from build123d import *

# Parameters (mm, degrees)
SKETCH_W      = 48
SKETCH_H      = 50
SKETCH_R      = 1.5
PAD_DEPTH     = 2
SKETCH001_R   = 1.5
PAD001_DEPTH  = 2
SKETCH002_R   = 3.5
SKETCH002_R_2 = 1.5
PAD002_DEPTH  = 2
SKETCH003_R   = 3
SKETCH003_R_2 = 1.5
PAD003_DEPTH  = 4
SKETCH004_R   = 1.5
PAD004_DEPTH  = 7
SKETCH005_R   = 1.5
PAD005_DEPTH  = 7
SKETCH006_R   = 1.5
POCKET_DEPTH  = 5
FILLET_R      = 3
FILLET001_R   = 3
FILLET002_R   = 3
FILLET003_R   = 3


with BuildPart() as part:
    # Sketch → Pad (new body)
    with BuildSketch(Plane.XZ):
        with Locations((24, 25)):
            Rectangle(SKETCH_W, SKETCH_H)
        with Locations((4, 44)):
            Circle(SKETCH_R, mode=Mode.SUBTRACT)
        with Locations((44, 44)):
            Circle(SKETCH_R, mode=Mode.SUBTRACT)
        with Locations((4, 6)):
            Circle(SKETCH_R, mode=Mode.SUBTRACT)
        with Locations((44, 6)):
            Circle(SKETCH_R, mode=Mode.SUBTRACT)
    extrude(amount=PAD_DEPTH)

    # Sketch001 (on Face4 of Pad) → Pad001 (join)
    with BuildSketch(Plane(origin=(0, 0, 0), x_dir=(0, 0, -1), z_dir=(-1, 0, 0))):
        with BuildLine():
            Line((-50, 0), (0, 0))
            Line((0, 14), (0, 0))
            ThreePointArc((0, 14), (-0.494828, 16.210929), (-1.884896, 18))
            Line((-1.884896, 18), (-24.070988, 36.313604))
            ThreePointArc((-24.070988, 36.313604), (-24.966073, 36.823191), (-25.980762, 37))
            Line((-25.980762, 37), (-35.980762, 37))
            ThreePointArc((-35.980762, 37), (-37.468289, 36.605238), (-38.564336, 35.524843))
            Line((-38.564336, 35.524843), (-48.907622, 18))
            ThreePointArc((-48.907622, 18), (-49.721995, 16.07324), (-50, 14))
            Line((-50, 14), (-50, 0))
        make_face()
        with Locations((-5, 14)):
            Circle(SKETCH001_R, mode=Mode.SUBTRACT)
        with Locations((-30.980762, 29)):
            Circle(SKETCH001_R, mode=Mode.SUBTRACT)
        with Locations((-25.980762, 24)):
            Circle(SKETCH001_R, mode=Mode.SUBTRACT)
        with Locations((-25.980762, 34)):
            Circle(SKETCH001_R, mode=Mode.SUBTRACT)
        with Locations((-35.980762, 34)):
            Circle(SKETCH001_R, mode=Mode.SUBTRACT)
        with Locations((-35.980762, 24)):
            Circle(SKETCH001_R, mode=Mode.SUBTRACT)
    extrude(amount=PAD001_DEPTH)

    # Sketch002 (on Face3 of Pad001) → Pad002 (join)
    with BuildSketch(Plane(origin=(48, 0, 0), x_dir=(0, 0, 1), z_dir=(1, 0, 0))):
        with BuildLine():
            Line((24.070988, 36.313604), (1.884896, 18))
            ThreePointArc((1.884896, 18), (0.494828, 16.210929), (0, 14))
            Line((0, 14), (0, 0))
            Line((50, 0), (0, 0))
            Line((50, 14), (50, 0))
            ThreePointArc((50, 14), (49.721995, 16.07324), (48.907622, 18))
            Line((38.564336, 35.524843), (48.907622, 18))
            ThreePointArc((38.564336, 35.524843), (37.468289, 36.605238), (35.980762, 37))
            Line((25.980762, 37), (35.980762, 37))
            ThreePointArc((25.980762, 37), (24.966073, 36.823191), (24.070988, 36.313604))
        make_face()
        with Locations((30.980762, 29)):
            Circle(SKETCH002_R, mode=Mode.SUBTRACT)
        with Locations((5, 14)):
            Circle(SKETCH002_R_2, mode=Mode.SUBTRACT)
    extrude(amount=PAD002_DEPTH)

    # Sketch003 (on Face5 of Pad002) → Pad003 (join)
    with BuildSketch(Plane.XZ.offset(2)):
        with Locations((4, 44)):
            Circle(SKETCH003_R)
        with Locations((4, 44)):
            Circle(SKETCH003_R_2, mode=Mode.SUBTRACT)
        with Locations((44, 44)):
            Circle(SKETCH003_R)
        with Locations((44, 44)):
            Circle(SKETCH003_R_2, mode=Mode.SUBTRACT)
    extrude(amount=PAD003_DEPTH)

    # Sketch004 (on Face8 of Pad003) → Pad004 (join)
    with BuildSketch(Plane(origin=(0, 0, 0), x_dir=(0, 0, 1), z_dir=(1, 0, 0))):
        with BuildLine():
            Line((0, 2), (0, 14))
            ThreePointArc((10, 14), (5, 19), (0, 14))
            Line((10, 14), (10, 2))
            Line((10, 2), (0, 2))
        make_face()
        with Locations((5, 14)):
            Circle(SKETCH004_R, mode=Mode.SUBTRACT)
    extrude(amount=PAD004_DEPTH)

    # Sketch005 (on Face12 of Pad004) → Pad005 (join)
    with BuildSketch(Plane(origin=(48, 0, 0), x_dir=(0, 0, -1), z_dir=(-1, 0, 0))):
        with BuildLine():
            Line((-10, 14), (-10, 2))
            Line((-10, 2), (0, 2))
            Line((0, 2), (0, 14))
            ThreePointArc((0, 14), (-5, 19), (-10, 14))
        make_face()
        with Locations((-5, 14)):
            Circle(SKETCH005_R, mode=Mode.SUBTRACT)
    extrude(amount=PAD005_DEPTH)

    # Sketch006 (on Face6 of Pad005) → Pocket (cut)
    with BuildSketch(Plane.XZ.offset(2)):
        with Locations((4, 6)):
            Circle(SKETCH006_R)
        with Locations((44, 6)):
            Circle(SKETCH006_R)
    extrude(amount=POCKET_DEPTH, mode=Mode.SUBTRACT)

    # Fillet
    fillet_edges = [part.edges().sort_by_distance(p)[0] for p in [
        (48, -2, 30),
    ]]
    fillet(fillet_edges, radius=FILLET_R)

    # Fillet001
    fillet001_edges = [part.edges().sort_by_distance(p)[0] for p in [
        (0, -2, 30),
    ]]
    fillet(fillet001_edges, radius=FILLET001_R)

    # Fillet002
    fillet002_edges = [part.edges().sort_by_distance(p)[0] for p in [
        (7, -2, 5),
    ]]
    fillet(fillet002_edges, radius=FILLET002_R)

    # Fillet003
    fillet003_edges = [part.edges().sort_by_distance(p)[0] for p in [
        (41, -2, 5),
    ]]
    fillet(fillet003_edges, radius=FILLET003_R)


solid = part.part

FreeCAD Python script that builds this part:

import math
import FreeCAD as App
import Part
import Sketcher

V = App.Vector


def edges_at(feature, points):
    """Names of the edges that pass closest to the given points."""
    edges = feature.Shape.Edges
    near = lambda p: min(range(len(edges)), key=lambda i: edges[i].distToShape(Part.Vertex(*p))[0])
    return sorted({f"Edge{near(p) + 1}" for p in points})

doc = App.newDocument("Part")
params = doc.addObject("Spreadsheet::Sheet", "Params")
for row, (alias, value) in enumerate([
    ("sketch1_diameter", "3 mm"),
    ("sketch1_width", "48 mm"),
    ("sketch1_height", "50 mm"),
    ("pad1_length", "2 mm"),
    ("sketch2_diameter", "3 mm"),
    ("sketch2_radius", "2.999999 mm"),
    ("sketch2_width", "14 mm"),
    ("sketch2_height", "50 mm"),
    ("sketch2_height2", "10 mm"),
    ("pad2_length", "2 mm"),
    ("sketch3_diameter", "3 mm"),
    ("sketch3_diameter2", "7 mm"),
    ("sketch3_radius", "2.999999 mm"),
    ("sketch3_width", "14 mm"),
    ("sketch3_height", "50 mm"),
    ("pad3_length", "2 mm"),
    ("sketch4_diameter", "6 mm"),
    ("sketch4_diameter2", "3 mm"),
    ("pad4_length", "4 mm"),
    ("sketch5_diameter", "3 mm"),
    ("sketch5_radius", "5 mm"),
    ("sketch5_width", "12 mm"),
    ("pad5_length", "7 mm"),
    ("sketch6_diameter", "3 mm"),
    ("sketch6_radius", "5 mm"),
    ("sketch6_width", "12 mm"),
    ("pad6_length", "7 mm"),
    ("sketch7_diameter", "3 mm"),
    ("pocket1_length", "5 mm"),
    ("fillet_radius", "3 mm"),
    ("fillet2_radius", "3 mm"),
    ("fillet3_radius", "3 mm"),
    ("fillet4_radius", "3 mm"),
], start=1):
    params.set(f"A{row}", alias)
    params.set(f"B{row}", "=" + value)
    params.setAlias(f"B{row}", alias)

body = doc.addObject("PartDesign::Body", "Body")

# Sketch on XZ plane
sketch1 = doc.addObject("Sketcher::SketchObject", "Sketch")
body.addObject(sketch1)
sketch1.AttachmentSupport = (doc.XZ_Plane, [""])
sketch1.MapMode = "FlatFace"
sketch1.addGeometry(Part.LineSegment(V(0, 50, 0), V(0, 0, 0)), False)
sketch1.addGeometry(Part.LineSegment(V(0, 0, 0), V(48, 0, 0)), False)
sketch1.addGeometry(Part.LineSegment(V(48, 0, 0), V(48, 50, 0)), False)
sketch1.addGeometry(Part.LineSegment(V(48, 50, 0), V(0, 50, 0)), False)
sketch1.addGeometry(Part.Circle(V(4, 6, 0), V(0, 0, 1), 1.5), False)
sketch1.addGeometry(Part.Circle(V(44, 6, 0), V(0, 0, 1), 1.5), False)
sketch1.addGeometry(Part.Circle(V(4, 44, 0), V(0, 0, 1), 1.5), False)
sketch1.addGeometry(Part.Circle(V(44, 44, 0), V(0, 0, 1), 1.5), False)
sketch1.addConstraint(Sketcher.Constraint("Coincident", 0, 2, 1, 1))
sketch1.addConstraint(Sketcher.Constraint("Coincident", 1, 2, 2, 1))
sketch1.addConstraint(Sketcher.Constraint("Coincident", 2, 2, 3, 1))
sketch1.addConstraint(Sketcher.Constraint("Coincident", 3, 2, 0, 1))
sketch1.addConstraint(Sketcher.Constraint("Vertical", 0))
sketch1.addConstraint(Sketcher.Constraint("Horizontal", 1))
sketch1.addConstraint(Sketcher.Constraint("Vertical", 2))
sketch1.addConstraint(Sketcher.Constraint("Horizontal", 3))
sketch1.addConstraint(Sketcher.Constraint("Coincident", 0, 2, -1, 1))
sketch1.addConstraint(Sketcher.Constraint("Equal", 4, 5))
sketch1.addConstraint(Sketcher.Constraint("Equal", 5, 6))
sketch1.addConstraint(Sketcher.Constraint("Equal", 6, 7))
sketch1.addConstraint(Sketcher.Constraint("Horizontal", 4, 3, 5, 3))
sketch1.addConstraint(Sketcher.Constraint("Horizontal", 6, 3, 7, 3))
sketch1.addConstraint(Sketcher.Constraint("Vertical", 4, 3, 6, 3))
sketch1.addConstraint(Sketcher.Constraint("Vertical", 5, 3, 7, 3))
sketch1.addConstraint(Sketcher.Constraint("Diameter", 4, 3.0))
sketch1.addConstraint(Sketcher.Constraint("DistanceX", 1, 1, 1, 2, 48.0))
sketch1.addConstraint(Sketcher.Constraint("DistanceY", 0, 2, 0, 1, 50.0))
sketch1.addConstraint(Sketcher.Constraint("DistanceX", -1, 1, 4, 3, 4.0))
sketch1.addConstraint(Sketcher.Constraint("DistanceY", -1, 1, 4, 3, 6.0))
sketch1.addConstraint(Sketcher.Constraint("DistanceX", -1, 1, 5, 3, 44.0))
sketch1.addConstraint(Sketcher.Constraint("DistanceY", -1, 1, 6, 3, 44.0))
sketch1.setExpression("Constraints[16]", "Params.sketch1_diameter")
sketch1.setExpression("Constraints[17]", "Params.sketch1_width")
sketch1.setExpression("Constraints[18]", "Params.sketch1_height")
pad1 = doc.addObject("PartDesign::Pad", "Pad")
body.addObject(pad1)
pad1.Profile = sketch1
pad1.setExpression("Length", "Params.pad1_length")

# Sketch on YZ plane
sketch2 = doc.addObject("Sketcher::SketchObject", "Sketch001")
body.addObject(sketch2)
sketch2.AttachmentSupport = (doc.YZ_Plane, [""])
sketch2.MapMode = "FlatFace"
sketch2.addGeometry(Part.LineSegment(V(0, 50, 0), V(0, 0, 0)), False)
sketch2.addGeometry(Part.LineSegment(V(0, 0, 0), V(-14, 0, 0)), False)
sketch2.addGeometry(Part.ArcOfCircle(Part.Circle(V(-14, 5.186715, 0), V(0, 0, 1), 5.186715), math.radians(-140.461873), math.radians(-90.000004)), False)
sketch2.addGeometry(Part.LineSegment(V(-18, 1.884896, 0), V(-36.313604, 24.070988, 0)), False)
sketch2.addGeometry(Part.ArcOfCircle(Part.Circle(V(-34.000003, 25.980761, 0), V(0, 0, 1), 2.999997), math.radians(179.999979), math.radians(219.538129)), False)
sketch2.addGeometry(Part.LineSegment(V(-37, 25.980762, 0), V(-37, 35.980762, 0)), False)
sketch2.addGeometry(Part.ArcOfCircle(Part.Circle(V(-34.000001, 35.980763, 0), V(0, 0, 1), 2.999999), math.radians(120.549382), math.radians(180.000017)), False)
sketch2.addGeometry(Part.LineSegment(V(-35.524843, 38.564336, 0), V(-18, 48.907622, 0)), False)
sketch2.addGeometry(Part.ArcOfCircle(Part.Circle(V(-14, 42.13034, 0), V(0, 0, 1), 7.86966), math.radians(89.999998), math.radians(120.549403)), False)
sketch2.addGeometry(Part.LineSegment(V(-14, 50, 0), V(0, 50, 0)), False)
sketch2.addGeometry(Part.Circle(V(-14, 5, 0), V(0, 0, 1), 1.5), False)
sketch2.addGeometry(Part.Circle(V(-24, 35.980762, 0), V(0, 0, 1), 1.5), False)
sketch2.addGeometry(Part.Circle(V(-29, 30.980762, 0), V(0, 0, 1), 1.5), False)
sketch2.addGeometry(Part.Circle(V(-24, 25.980762, 0), V(0, 0, 1), 1.5), False)
sketch2.addGeometry(Part.Circle(V(-34, 35.980762, 0), V(0, 0, 1), 1.5), False)
sketch2.addGeometry(Part.Circle(V(-34, 25.980762, 0), V(0, 0, 1), 1.5), False)
sketch2.addConstraint(Sketcher.Constraint("Coincident", 0, 2, 1, 1))
sketch2.addConstraint(Sketcher.Constraint("Tangent", 1, 2, 2, 2))
sketch2.addConstraint(Sketcher.Constraint("Tangent", 2, 1, 3, 1))
sketch2.addConstraint(Sketcher.Constraint("Tangent", 3, 2, 4, 2))
sketch2.addConstraint(Sketcher.Constraint("Tangent", 4, 1, 5, 1))
sketch2.addConstraint(Sketcher.Constraint("Tangent", 5, 2, 6, 2))
sketch2.addConstraint(Sketcher.Constraint("Tangent", 6, 1, 7, 1))
sketch2.addConstraint(Sketcher.Constraint("Tangent", 7, 2, 8, 2))
sketch2.addConstraint(Sketcher.Constraint("Tangent", 8, 1, 9, 1))
sketch2.addConstraint(Sketcher.Constraint("Coincident", 9, 2, 0, 1))
sketch2.addConstraint(Sketcher.Constraint("Vertical", 0))
sketch2.addConstraint(Sketcher.Constraint("Horizontal", 1))
sketch2.addConstraint(Sketcher.Constraint("Vertical", 5))
sketch2.addConstraint(Sketcher.Constraint("Horizontal", 9))
sketch2.addConstraint(Sketcher.Constraint("Coincident", 0, 2, -1, 1))
sketch2.addConstraint(Sketcher.Constraint("Coincident", 14, 3, 6, 3))
sketch2.addConstraint(Sketcher.Constraint("Coincident", 15, 3, 4, 3))
sketch2.addConstraint(Sketcher.Constraint("Equal", 4, 6))
sketch2.addConstraint(Sketcher.Constraint("Equal", 10, 11))
sketch2.addConstraint(Sketcher.Constraint("Equal", 11, 12))
sketch2.addConstraint(Sketcher.Constraint("Equal", 12, 13))
sketch2.addConstraint(Sketcher.Constraint("Equal", 13, 14))
sketch2.addConstraint(Sketcher.Constraint("Equal", 14, 15))
sketch2.addConstraint(Sketcher.Constraint("Horizontal", 6, 3, 11, 3))
sketch2.addConstraint(Sketcher.Constraint("Horizontal", 4, 3, 13, 3))
sketch2.addConstraint(Sketcher.Constraint("Vertical", 2, 3, 8, 3))
sketch2.addConstraint(Sketcher.Constraint("Vertical", 8, 3, 10, 3))
sketch2.addConstraint(Sketcher.Constraint("Vertical", 11, 3, 13, 3))
sketch2.addConstraint(Sketcher.Constraint("Vertical", 2, 1, 7, 2))
sketch2.addConstraint(Sketcher.Constraint("Diameter", 10, 3.0))
sketch2.addConstraint(Sketcher.Constraint("Radius", 6, 2.999999))
sketch2.addConstraint(Sketcher.Constraint("DistanceX", 1, 2, 1, 1, 14.0))
sketch2.addConstraint(Sketcher.Constraint("DistanceY", 0, 2, 0, 1, 50.0))
sketch2.addConstraint(Sketcher.Constraint("DistanceY", 5, 1, 5, 2, 10.0))
sketch2.addConstraint(Sketcher.Constraint("DistanceX", 6, 3, -1, 1, 34.000001))
sketch2.addConstraint(Sketcher.Constraint("DistanceY", -1, 1, 10, 3, 5.0))
sketch2.addConstraint(Sketcher.Constraint("DistanceX", 11, 3, -1, 1, 24.0))
sketch2.addConstraint(Sketcher.Constraint("DistanceX", 12, 3, -1, 1, 29.0))
sketch2.addConstraint(Sketcher.Constraint("DistanceX", 2, 1, -1, 1, 18.0))
sketch2.addConstraint(Sketcher.Constraint("DistanceY", 12, 3, 11, 3, 5.0))
sketch2.addConstraint(Sketcher.Constraint("Radius", 8, 7.86966))
sketch2.setExpression("Constraints[29]", "Params.sketch2_diameter")
sketch2.setExpression("Constraints[30]", "Params.sketch2_radius")
sketch2.setExpression("Constraints[31]", "Params.sketch2_width")
sketch2.setExpression("Constraints[32]", "Params.sketch2_height")
sketch2.setExpression("Constraints[33]", "Params.sketch2_height2")
pad2 = doc.addObject("PartDesign::Pad", "Pad001")
body.addObject(pad2)
pad2.Profile = sketch2
pad2.setExpression("Length", "Params.pad2_length")
pad2.Reversed = True

# Sketch on YZ plane
sketch3 = doc.addObject("Sketcher::SketchObject", "Sketch002")
body.addObject(sketch3)
sketch3.AttachmentSupport = (doc.YZ_Plane, [""])
sketch3.MapMode = "FlatFace"
sketch3.AttachmentOffset = App.Placement(V(0, 0, 48), App.Rotation())
sketch3.addGeometry(Part.LineSegment(V(-36.313604, 24.070988, 0), V(-18, 1.884896, 0)), False)
sketch3.addGeometry(Part.ArcOfCircle(Part.Circle(V(-14, 5.186715, 0), V(0, 0, 1), 5.186715), math.radians(-140.461873), math.radians(-90.000004)), False)
sketch3.addGeometry(Part.LineSegment(V(-14, 0, 0), V(0, 0, 0)), False)
sketch3.addGeometry(Part.LineSegment(V(0, 0, 0), V(0, 50, 0)), False)
sketch3.addGeometry(Part.LineSegment(V(0, 50, 0), V(-14, 50, 0)), False)
sketch3.addGeometry(Part.ArcOfCircle(Part.Circle(V(-14, 42.13034, 0), V(0, 0, 1), 7.86966), math.radians(89.999998), math.radians(120.549403)), False)
sketch3.addGeometry(Part.LineSegment(V(-18, 48.907622, 0), V(-35.524843, 38.564336, 0)), False)
sketch3.addGeometry(Part.ArcOfCircle(Part.Circle(V(-34.000001, 35.980763, 0), V(0, 0, 1), 2.999999), math.radians(120.549382), math.radians(180.000017)), False)
sketch3.addGeometry(Part.LineSegment(V(-37, 35.980762, 0), V(-37, 25.980762, 0)), False)
sketch3.addGeometry(Part.ArcOfCircle(Part.Circle(V(-34.000003, 25.980761, 0), V(0, 0, 1), 2.999997), math.radians(179.999979), math.radians(219.538129)), False)
sketch3.addGeometry(Part.Circle(V(-14, 5, 0), V(0, 0, 1), 1.5), False)
sketch3.addGeometry(Part.Circle(V(-29, 30.980762, 0), V(0, 0, 1), 3.5), False)
sketch3.addConstraint(Sketcher.Constraint("Tangent", 0, 2, 1, 1))
sketch3.addConstraint(Sketcher.Constraint("Tangent", 1, 2, 2, 1))
sketch3.addConstraint(Sketcher.Constraint("Coincident", 2, 2, 3, 1))
sketch3.addConstraint(Sketcher.Constraint("Coincident", 3, 2, 4, 1))
sketch3.addConstraint(Sketcher.Constraint("Tangent", 4, 2, 5, 1))
sketch3.addConstraint(Sketcher.Constraint("Tangent", 5, 2, 6, 1))
sketch3.addConstraint(Sketcher.Constraint("Tangent", 6, 2, 7, 1))
sketch3.addConstraint(Sketcher.Constraint("Tangent", 7, 2, 8, 1))
sketch3.addConstraint(Sketcher.Constraint("Tangent", 8, 2, 9, 1))
sketch3.addConstraint(Sketcher.Constraint("Tangent", 9, 2, 0, 1))
sketch3.addConstraint(Sketcher.Constraint("Horizontal", 2))
sketch3.addConstraint(Sketcher.Constraint("Vertical", 3))
sketch3.addConstraint(Sketcher.Constraint("Horizontal", 4))
sketch3.addConstraint(Sketcher.Constraint("Vertical", 8))
sketch3.addConstraint(Sketcher.Constraint("Coincident", 2, 2, -1, 1))
sketch3.addConstraint(Sketcher.Constraint("Equal", 7, 9))
sketch3.addConstraint(Sketcher.Constraint("Vertical", 1, 3, 5, 3))
sketch3.addConstraint(Sketcher.Constraint("Vertical", 5, 3, 10, 3))
sketch3.addConstraint(Sketcher.Constraint("Vertical", 0, 2, 5, 2))
sketch3.addConstraint(Sketcher.Constraint("Diameter", 10, 3.0))
sketch3.addConstraint(Sketcher.Constraint("Diameter", 11, 7.0))
sketch3.addConstraint(Sketcher.Constraint("Radius", 7, 2.999999))
sketch3.addConstraint(Sketcher.Constraint("DistanceX", 2, 1, 2, 2, 14.0))
sketch3.addConstraint(Sketcher.Constraint("DistanceY", 3, 1, 3, 2, 50.0))
sketch3.addConstraint(Sketcher.Constraint("DistanceY", 8, 2, 8, 1, 10.0))
sketch3.addConstraint(Sketcher.Constraint("DistanceX", 7, 3, -1, 1, 34.000001))
sketch3.addConstraint(Sketcher.Constraint("DistanceY", -1, 1, 10, 3, 5.0))
sketch3.addConstraint(Sketcher.Constraint("DistanceX", 11, 3, -1, 1, 29.0))
sketch3.addConstraint(Sketcher.Constraint("DistanceX", 0, 2, -1, 1, 18.0))
sketch3.addConstraint(Sketcher.Constraint("DistanceY", 11, 3, 7, 3, 5.000001))
sketch3.addConstraint(Sketcher.Constraint("Radius", 5, 7.86966))
sketch3.setExpression("Constraints[19]", "Params.sketch3_diameter")
sketch3.setExpression("Constraints[20]", "Params.sketch3_diameter2")
sketch3.setExpression("Constraints[21]", "Params.sketch3_radius")
sketch3.setExpression("Constraints[22]", "Params.sketch3_width")
sketch3.setExpression("Constraints[23]", "Params.sketch3_height")
pad3 = doc.addObject("PartDesign::Pad", "Pad002")
body.addObject(pad3)
pad3.Profile = sketch3
pad3.setExpression("Length", "Params.pad3_length")

# Sketch on XZ plane
sketch4 = doc.addObject("Sketcher::SketchObject", "Sketch003")
body.addObject(sketch4)
sketch4.AttachmentSupport = (doc.XZ_Plane, [""])
sketch4.MapMode = "FlatFace"
sketch4.AttachmentOffset = App.Placement(V(0, 0, 2), App.Rotation())
sketch4.addGeometry(Part.Circle(V(4, 44, 0), V(0, 0, 1), 3), False)
sketch4.addGeometry(Part.Circle(V(4, 44, 0), V(0, 0, 1), 1.5), False)
sketch4.addGeometry(Part.Circle(V(44, 44, 0), V(0, 0, 1), 3), False)
sketch4.addGeometry(Part.Circle(V(44, 44, 0), V(0, 0, 1), 1.5), False)
sketch4.addConstraint(Sketcher.Constraint("Coincident", 1, 3, 0, 3))
sketch4.addConstraint(Sketcher.Constraint("Coincident", 3, 3, 2, 3))
sketch4.addConstraint(Sketcher.Constraint("Equal", 0, 2))
sketch4.addConstraint(Sketcher.Constraint("Equal", 1, 3))
sketch4.addConstraint(Sketcher.Constraint("Horizontal", 1, 3, 2, 3))
sketch4.addConstraint(Sketcher.Constraint("Diameter", 0, 6.0))
sketch4.addConstraint(Sketcher.Constraint("Diameter", 1, 3.0))
sketch4.addConstraint(Sketcher.Constraint("DistanceX", -1, 1, 0, 3, 4.0))
sketch4.addConstraint(Sketcher.Constraint("DistanceY", -1, 1, 0, 3, 44.0))
sketch4.addConstraint(Sketcher.Constraint("DistanceX", -1, 1, 2, 3, 44.0))
sketch4.setExpression("Constraints[5]", "Params.sketch4_diameter")
sketch4.setExpression("Constraints[6]", "Params.sketch4_diameter2")
pad4 = doc.addObject("PartDesign::Pad", "Pad003")
body.addObject(pad4)
pad4.Profile = sketch4
pad4.setExpression("Length", "Params.pad4_length")

# Sketch on YZ plane
sketch5 = doc.addObject("Sketcher::SketchObject", "Sketch004")
body.addObject(sketch5)
sketch5.AttachmentSupport = (doc.YZ_Plane, [""])
sketch5.MapMode = "FlatFace"
sketch5.addGeometry(Part.LineSegment(V(-14, 0, 0), V(-2, 0, 0)), False)
sketch5.addGeometry(Part.LineSegment(V(-2, 0, 0), V(-2, 10, 0)), False)
sketch5.addGeometry(Part.LineSegment(V(-2, 10, 0), V(-14, 10, 0)), False)
sketch5.addGeometry(Part.ArcOfCircle(Part.Circle(V(-14, 5, 0), V(0, 0, 1), 5), math.radians(90), math.radians(270)), False)
sketch5.addGeometry(Part.Circle(V(-14, 5, 0), V(0, 0, 1), 1.5), False)
sketch5.addConstraint(Sketcher.Constraint("Coincident", 0, 2, 1, 1))
sketch5.addConstraint(Sketcher.Constraint("Coincident", 1, 2, 2, 1))
sketch5.addConstraint(Sketcher.Constraint("Tangent", 2, 2, 3, 1))
sketch5.addConstraint(Sketcher.Constraint("Tangent", 3, 2, 0, 1))
sketch5.addConstraint(Sketcher.Constraint("Horizontal", 0))
sketch5.addConstraint(Sketcher.Constraint("Vertical", 1))
sketch5.addConstraint(Sketcher.Constraint("Horizontal", 2))
sketch5.addConstraint(Sketcher.Constraint("Coincident", 4, 3, 3, 3))
sketch5.addConstraint(Sketcher.Constraint("PointOnObject", 0, 2, -1))
sketch5.addConstraint(Sketcher.Constraint("Diameter", 4, 3.0))
sketch5.addConstraint(Sketcher.Constraint("Radius", 3, 5.0))
sketch5.addConstraint(Sketcher.Constraint("DistanceX", 0, 1, 0, 2, 12.0))
sketch5.addConstraint(Sketcher.Constraint("DistanceX", 3, 3, -1, 1, 14.0))
sketch5.setExpression("Constraints[9]", "Params.sketch5_diameter")
sketch5.setExpression("Constraints[10]", "Params.sketch5_radius")
sketch5.setExpression("Constraints[11]", "Params.sketch5_width")
pad5 = doc.addObject("PartDesign::Pad", "Pad004")
body.addObject(pad5)
pad5.Profile = sketch5
pad5.setExpression("Length", "Params.pad5_length")

# Sketch on YZ plane
sketch6 = doc.addObject("Sketcher::SketchObject", "Sketch005")
body.addObject(sketch6)
sketch6.AttachmentSupport = (doc.YZ_Plane, [""])
sketch6.MapMode = "FlatFace"
sketch6.AttachmentOffset = App.Placement(V(0, 0, 48), App.Rotation())
sketch6.addGeometry(Part.LineSegment(V(-14, 10, 0), V(-2, 10, 0)), False)
sketch6.addGeometry(Part.LineSegment(V(-2, 10, 0), V(-2, 0, 0)), False)
sketch6.addGeometry(Part.LineSegment(V(-2, 0, 0), V(-14, 0, 0)), False)
sketch6.addGeometry(Part.ArcOfCircle(Part.Circle(V(-14, 5, 0), V(0, 0, 1), 5), math.radians(90), math.radians(270)), False)
sketch6.addGeometry(Part.Circle(V(-14, 5, 0), V(0, 0, 1), 1.5), False)
sketch6.addConstraint(Sketcher.Constraint("Coincident", 0, 2, 1, 1))
sketch6.addConstraint(Sketcher.Constraint("Coincident", 1, 2, 2, 1))
sketch6.addConstraint(Sketcher.Constraint("Tangent", 2, 2, 3, 2))
sketch6.addConstraint(Sketcher.Constraint("Tangent", 3, 1, 0, 1))
sketch6.addConstraint(Sketcher.Constraint("Horizontal", 0))
sketch6.addConstraint(Sketcher.Constraint("Vertical", 1))
sketch6.addConstraint(Sketcher.Constraint("Horizontal", 2))
sketch6.addConstraint(Sketcher.Constraint("Coincident", 4, 3, 3, 3))
sketch6.addConstraint(Sketcher.Constraint("PointOnObject", 1, 2, -1))
sketch6.addConstraint(Sketcher.Constraint("Diameter", 4, 3.0))
sketch6.addConstraint(Sketcher.Constraint("Radius", 3, 5.0))
sketch6.addConstraint(Sketcher.Constraint("DistanceX", 0, 1, 0, 2, 12.0))
sketch6.addConstraint(Sketcher.Constraint("DistanceX", 3, 3, -1, 1, 14.0))
sketch6.setExpression("Constraints[9]", "Params.sketch6_diameter")
sketch6.setExpression("Constraints[10]", "Params.sketch6_radius")
sketch6.setExpression("Constraints[11]", "Params.sketch6_width")
pad6 = doc.addObject("PartDesign::Pad", "Pad005")
body.addObject(pad6)
pad6.Profile = sketch6
pad6.setExpression("Length", "Params.pad6_length")
pad6.Reversed = True

# Sketch on XZ plane
sketch7 = doc.addObject("Sketcher::SketchObject", "Sketch006")
body.addObject(sketch7)
sketch7.AttachmentSupport = (doc.XZ_Plane, [""])
sketch7.MapMode = "FlatFace"
sketch7.AttachmentOffset = App.Placement(V(0, 0, 2), App.Rotation())
sketch7.addGeometry(Part.Circle(V(4, 6, 0), V(0, 0, 1), 1.5), False)
sketch7.addGeometry(Part.Circle(V(44, 6, 0), V(0, 0, 1), 1.5), False)
sketch7.addConstraint(Sketcher.Constraint("Equal", 0, 1))
sketch7.addConstraint(Sketcher.Constraint("Horizontal", 0, 3, 1, 3))
sketch7.addConstraint(Sketcher.Constraint("Diameter", 0, 3.0))
sketch7.addConstraint(Sketcher.Constraint("DistanceX", -1, 1, 0, 3, 4.0))
sketch7.addConstraint(Sketcher.Constraint("DistanceY", -1, 1, 0, 3, 6.0))
sketch7.addConstraint(Sketcher.Constraint("DistanceX", -1, 1, 1, 3, 44.0))
sketch7.setExpression("Constraints[2]", "Params.sketch7_diameter")
pocket1 = doc.addObject("PartDesign::Pocket", "Pocket")
body.addObject(pocket1)
pocket1.Profile = sketch7
pocket1.setExpression("Length", "Params.pocket1_length")
pocket1.Reversed = True
doc.recompute()

fillet = doc.addObject("PartDesign::Fillet", "Fillet")
body.addObject(fillet)
fillet.Base = (pocket1, edges_at(pocket1, [(48, -2, 30)]))
fillet.setExpression("Radius", "Params.fillet_radius")
doc.recompute()

fillet2 = doc.addObject("PartDesign::Fillet", "Fillet001")
body.addObject(fillet2)
fillet2.Base = (fillet, edges_at(fillet, [(0, -2, 30)]))
fillet2.setExpression("Radius", "Params.fillet2_radius")
doc.recompute()

fillet3 = doc.addObject("PartDesign::Fillet", "Fillet002")
body.addObject(fillet3)
fillet3.Base = (fillet2, edges_at(fillet2, [(7, -2, 5)]))
fillet3.setExpression("Radius", "Params.fillet3_radius")
doc.recompute()

fillet4 = doc.addObject("PartDesign::Fillet", "Fillet003")
body.addObject(fillet4)
fillet4.Base = (fillet3, edges_at(fillet3, [(41, -2, 5)]))
fillet4.setExpression("Radius", "Params.fillet4_radius")

doc.recompute()
